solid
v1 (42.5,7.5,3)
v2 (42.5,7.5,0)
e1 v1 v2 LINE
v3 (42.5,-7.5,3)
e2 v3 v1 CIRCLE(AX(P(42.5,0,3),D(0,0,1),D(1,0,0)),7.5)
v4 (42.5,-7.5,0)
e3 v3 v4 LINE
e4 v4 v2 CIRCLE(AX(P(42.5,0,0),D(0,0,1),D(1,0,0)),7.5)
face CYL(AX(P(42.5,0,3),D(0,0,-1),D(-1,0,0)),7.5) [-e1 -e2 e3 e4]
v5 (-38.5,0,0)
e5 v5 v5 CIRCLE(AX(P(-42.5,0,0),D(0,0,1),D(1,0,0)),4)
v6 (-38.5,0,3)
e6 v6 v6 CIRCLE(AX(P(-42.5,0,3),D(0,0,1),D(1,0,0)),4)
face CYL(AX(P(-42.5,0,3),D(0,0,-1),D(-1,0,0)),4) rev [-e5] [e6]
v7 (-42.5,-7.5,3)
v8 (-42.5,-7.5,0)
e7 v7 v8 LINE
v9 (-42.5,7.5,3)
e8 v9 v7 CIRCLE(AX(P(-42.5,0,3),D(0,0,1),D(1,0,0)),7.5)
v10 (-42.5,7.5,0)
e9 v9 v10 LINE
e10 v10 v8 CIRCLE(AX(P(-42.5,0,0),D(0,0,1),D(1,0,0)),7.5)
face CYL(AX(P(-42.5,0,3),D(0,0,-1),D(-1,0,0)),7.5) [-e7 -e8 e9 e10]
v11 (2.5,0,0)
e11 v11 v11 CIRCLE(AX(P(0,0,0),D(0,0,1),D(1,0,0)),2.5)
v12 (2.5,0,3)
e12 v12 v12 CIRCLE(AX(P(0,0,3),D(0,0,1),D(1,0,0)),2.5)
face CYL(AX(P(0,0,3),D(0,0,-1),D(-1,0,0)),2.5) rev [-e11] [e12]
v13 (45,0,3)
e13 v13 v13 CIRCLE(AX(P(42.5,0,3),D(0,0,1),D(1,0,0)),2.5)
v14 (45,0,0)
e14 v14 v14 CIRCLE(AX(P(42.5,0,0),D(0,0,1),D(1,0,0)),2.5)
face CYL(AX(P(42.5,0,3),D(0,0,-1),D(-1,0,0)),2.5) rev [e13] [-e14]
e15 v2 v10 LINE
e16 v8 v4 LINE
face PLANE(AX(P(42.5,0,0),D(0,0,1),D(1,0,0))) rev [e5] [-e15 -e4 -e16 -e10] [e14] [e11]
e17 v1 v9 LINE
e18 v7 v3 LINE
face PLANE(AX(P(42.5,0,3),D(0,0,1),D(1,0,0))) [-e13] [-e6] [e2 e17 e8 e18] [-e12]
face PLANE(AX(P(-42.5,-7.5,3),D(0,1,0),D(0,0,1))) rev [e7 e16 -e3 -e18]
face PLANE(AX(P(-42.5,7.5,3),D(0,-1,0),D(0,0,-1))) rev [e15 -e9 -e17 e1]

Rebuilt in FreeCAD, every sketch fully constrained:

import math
import FreeCAD as App
import Part
import Sketcher
from FreeCAD import Vector

doc = App.newDocument("Part")
body = doc.addObject("PartDesign::Body", "Body")

# Sketch on XY plane
sketch1 = doc.addObject("Sketcher::SketchObject", "Sketch")
body.addObject(sketch1)
sketch1.AttachmentSupport = (doc.XY_Plane, [""])
sketch1.MapMode = "FlatFace"
sketch1.addGeometry(Part.LineSegment(Vector(-42.5, -7.5, 0), Vector(42.5, -7.5, 0)), False)
sketch1.addGeometry(Part.ArcOfCircle(Part.Circle(Vector(42.5, 0, 0), Vector(0, 0, 1), 7.5), math.radians(-90), math.radians(90)), False)
sketch1.addGeometry(Part.LineSegment(Vector(42.5, 7.5, 0), Vector(-42.5, 7.5, 0)), False)
sketch1.addGeometry(Part.ArcOfCircle(Part.Circle(Vector(-42.5, 0, 0), Vector(0, 0, 1), 7.5), math.radians(90), math.radians(270)), False)
sketch1.addGeometry(Part.Circle(Vector(-42.5, 0, 0), Vector(0, 0, 1), 4), False)
sketch1.addGeometry(Part.Circle(Vector(0, 0, 0), Vector(0, 0, 1), 2.5), False)
sketch1.addGeometry(Part.Circle(Vector(42.5, 0, 0), Vector(0, 0, 1), 2.5), False)
sketch1.addConstraint(Sketcher.Constraint("Tangent", 0, 2, 1, 1))
sketch1.addConstraint(Sketcher.Constraint("Tangent", 1, 2, 2, 1))
sketch1.addConstraint(Sketcher.Constraint("Tangent", 2, 2, 3, 1))
sketch1.addConstraint(Sketcher.Constraint("Tangent", 3, 2, 0, 1))
sketch1.addConstraint(Sketcher.Constraint("Horizontal", 0))
sketch1.addConstraint(Sketcher.Constraint("Horizontal", 2))
sketch1.addConstraint(Sketcher.Constraint("Coincident", 5, 3, -1, 1))
sketch1.addConstraint(Sketcher.Constraint("Coincident", 4, 3, 3, 3))
sketch1.addConstraint(Sketcher.Constraint("Coincident", 6, 3, 1, 3))
sketch1.addConstraint(Sketcher.Constraint("Equal", 5, 6))
sketch1.addConstraint(Sketcher.Constraint("Symmetric", 1, 3, 3, 3, -1, 1))
sketch1.addConstraint(Sketcher.Constraint("Diameter", 4, 8.0))
sketch1.addConstraint(Sketcher.Constraint("Diameter", 5, 5.0))
sketch1.addConstraint(Sketcher.Constraint("Radius", 1, 7.5))
sketch1.addConstraint(Sketcher.Constraint("DistanceX", 0, 1, 0, 2, 85.0))
pad1 = doc.addObject("PartDesign::Pad", "Pad")
body.addObject(pad1)
pad1.Profile = sketch1
pad1.Length = 3

doc.recompute()
